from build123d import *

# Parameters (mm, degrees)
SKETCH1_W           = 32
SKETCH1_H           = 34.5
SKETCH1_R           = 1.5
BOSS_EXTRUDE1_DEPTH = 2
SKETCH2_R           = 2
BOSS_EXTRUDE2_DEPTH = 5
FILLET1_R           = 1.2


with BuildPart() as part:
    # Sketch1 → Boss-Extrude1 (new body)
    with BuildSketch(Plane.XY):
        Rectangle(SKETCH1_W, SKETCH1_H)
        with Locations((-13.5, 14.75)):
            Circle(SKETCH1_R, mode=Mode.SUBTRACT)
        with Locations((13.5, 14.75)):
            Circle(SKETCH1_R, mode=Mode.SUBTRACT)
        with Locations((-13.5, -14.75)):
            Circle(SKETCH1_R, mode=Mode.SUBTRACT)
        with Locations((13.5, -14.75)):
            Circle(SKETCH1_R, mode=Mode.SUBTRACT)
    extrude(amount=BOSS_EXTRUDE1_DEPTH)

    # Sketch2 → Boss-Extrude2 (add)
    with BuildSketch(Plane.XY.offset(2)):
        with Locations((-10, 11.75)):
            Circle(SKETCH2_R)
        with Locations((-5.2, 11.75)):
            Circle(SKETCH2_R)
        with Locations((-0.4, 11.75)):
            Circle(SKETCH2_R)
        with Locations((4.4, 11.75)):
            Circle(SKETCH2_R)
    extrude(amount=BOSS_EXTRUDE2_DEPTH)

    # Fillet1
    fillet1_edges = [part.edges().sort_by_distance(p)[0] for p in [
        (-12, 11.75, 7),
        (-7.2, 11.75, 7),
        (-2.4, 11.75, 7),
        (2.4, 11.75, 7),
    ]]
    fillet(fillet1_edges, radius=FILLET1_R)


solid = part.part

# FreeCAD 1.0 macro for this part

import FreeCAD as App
import Part
import Sketcher

V = App.Vector
Q = App.Units.Quantity


def edges_at(feature, points):
    """Names of the edges that pass closest to the given points."""
    edges = feature.Shape.Edges
    near = lambda p: min(range(len(edges)), key=lambda i: edges[i].distToShape(Part.Vertex(*p))[0])
    return sorted({f"Edge{near(p) + 1}" for p in points})


def add_polygon(sketch, points):
    """Adds a closed chain of lines whose ends are joined by coincident constraints."""
    first, n = sketch.GeometryCount, len(points)
    for a, b in zip(points, points[1:] + points[:1]):
        sketch.addGeometry(Part.LineSegment(App.Vector(*a, 0), App.Vector(*b, 0)), False)
    for i in range(n):
        sketch.addConstraint(Sketcher.Constraint("Coincident", first + i, 2, first + (i + 1) % n, 1))

doc = App.newDocument("Part")
params = doc.addObject("Spreadsheet::Sheet", "Params")
for row, (alias, value) in enumerate([
    ("sketch1_diameter", "3 mm"),
    ("sketch1_width", "32 mm"),
    ("sketch1_height", "34.5 mm"),
    ("pad1_length", "2 mm"),
    ("sketch2_diameter", "4 mm"),
    ("pad2_length", "5 mm"),
    ("fillet_radius", "1.2 mm"),
], start=1):
    params.set(f"A{row}", alias)
    params.set(f"B{row}", "=" + value)
    params.setAlias(f"B{row}", alias)

body = doc.addObject("PartDesign::Body", "Body")

sketch1 = body.newObject("Sketcher::SketchObject", "Sketch")
sketch1.AttachmentSupport = (doc.getObject("XY_Plane"), [""])
sketch1.MapMode = "FlatFace"
add_polygon(sketch1, [(-16, 17.2), (-16, -17.2), (16, -17.2), (16, 17.2)])
sketch1.addGeometry(Part.Circle(V(-13.5, -14.8, 0), V(0, 0, 1), 1.5), False)
sketch1.addGeometry(Part.Circle(V(13.5, -14.8, 0), V(0, 0, 1), 1.5), False)
sketch1.addGeometry(Part.Circle(V(-13.5, 14.8, 0), V(0, 0, 1), 1.5), False)
sketch1.addGeometry(Part.Circle(V(13.5, 14.8, 0), V(0, 0, 1), 1.5), False)
sketch1.addConstraint([
    Sketcher.Constraint("Vertical", 0),
    Sketcher.Constraint("Horizontal", 1),
    Sketcher.Constraint("Vertical", 2),
    Sketcher.Constraint("Horizontal", 3),
    Sketcher.Constraint("Equal", 4, 5),
    Sketcher.Constraint("Equal", 5, 6),
    Sketcher.Constraint("Equal", 6, 7),
    Sketcher.Constraint("Symmetric", 5, 3, 6, 3, -1, 1),
    Sketcher.Constraint("Symmetric", 4, 3, 7, 3, -1, 1),
    Sketcher.Constraint("Symmetric", 0, 2, 2, 2, -1, 1),
    Sketcher.Constraint("Symmetric", 4, 3, 5, 3, -2),
    Sketcher.Constraint("Diameter", 4, Q("3 mm")),
    Sketcher.Constraint("DistanceX", 1, 1, 1, 2, Q("32 mm")),
    Sketcher.Constraint("DistanceY", 0, 2, 0, 1, Q("34.5 mm")),
    Sketcher.Constraint("DistanceX", 4, 3, 5, 3, Q("27 mm")),
    Sketcher.Constraint("DistanceY", 0, 2, 6, 3, Q("32 mm")),
])
sketch1.setExpression("Constraints[15]", "Params.sketch1_diameter")
sketch1.setExpression("Constraints[16]", "Params.sketch1_width")
sketch1.setExpression("Constraints[17]", "Params.sketch1_height")
pad1 = body.newObject("PartDesign::Pad", "Pad")
pad1.Profile = sketch1
pad1.setExpression("Length", "Params.pad1_length")

sketch2 = body.newObject("Sketcher::SketchObject", "Sketch001")
sketch2.AttachmentSupport = (doc.getObject("XY_Plane"), [""])
sketch2.MapMode = "FlatFace"
sketch2.AttachmentOffset = App.Placement(V(0, 0, 2), App.Rotation())
sketch2.addGeometry([
    Part.Circle(V(-10, 11.8, 0), V(0, 0, 1), 2),
    Part.Circle(V(-5.2, 11.8, 0), V(0, 0, 1), 2),
    Part.Circle(V(-0.4, 11.8, 0), V(0, 0, 1), 2),
    Part.Circle(V(4.4, 11.8, 0), V(0, 0, 1), 2),
], False)
sketch2.addConstraint([
    Sketcher.Constraint("Equal", 0, 1),
    Sketcher.Constraint("Equal", 1, 2),
    Sketcher.Constraint("Equal", 2, 3),
    Sketcher.Constraint("Horizontal", 0, 3, 1, 3),
    Sketcher.Constraint("Horizontal", 1, 3, 2, 3),
    Sketcher.Constraint("Horizontal", 2, 3, 3, 3),
    Sketcher.Constraint("Diameter", 0, Q("4 mm")),
    Sketcher.Constraint("DistanceX", 0, 3, -1, 1, Q("10 mm")),
    Sketcher.Constraint("DistanceX", 1, 3, -1, 1, Q("5.2 mm")),
    Sketcher.Constraint("DistanceX", 2, 3, -1, 1, Q("0.4 mm")),
    Sketcher.Constraint("DistanceX", -1, 1, 3, 3, Q("4.4 mm")),
    Sketcher.Constraint("DistanceY", -1, 1, 0, 3, Q("11.75 mm")),
])
sketch2.setExpression("Constraints[6]", "Params.sketch2_diameter")
pad2 = body.newObject("PartDesign::Pad", "Pad001")
pad2.Profile = sketch2
pad2.setExpression("Length", "Params.pad2_length")
doc.recompute()

fillet = body.newObject("PartDesign::Fillet", "Fillet")
fillet.Base = (pad2, edges_at(pad2, [
    (-12, 11.75, 7),
    (-7.2, 11.75, 7),
    (-2.4, 11.75, 7),
    (2.4, 11.75, 7),
]))
fillet.setExpression("Radius", "Params.fillet_radius")

doc.recompute()
